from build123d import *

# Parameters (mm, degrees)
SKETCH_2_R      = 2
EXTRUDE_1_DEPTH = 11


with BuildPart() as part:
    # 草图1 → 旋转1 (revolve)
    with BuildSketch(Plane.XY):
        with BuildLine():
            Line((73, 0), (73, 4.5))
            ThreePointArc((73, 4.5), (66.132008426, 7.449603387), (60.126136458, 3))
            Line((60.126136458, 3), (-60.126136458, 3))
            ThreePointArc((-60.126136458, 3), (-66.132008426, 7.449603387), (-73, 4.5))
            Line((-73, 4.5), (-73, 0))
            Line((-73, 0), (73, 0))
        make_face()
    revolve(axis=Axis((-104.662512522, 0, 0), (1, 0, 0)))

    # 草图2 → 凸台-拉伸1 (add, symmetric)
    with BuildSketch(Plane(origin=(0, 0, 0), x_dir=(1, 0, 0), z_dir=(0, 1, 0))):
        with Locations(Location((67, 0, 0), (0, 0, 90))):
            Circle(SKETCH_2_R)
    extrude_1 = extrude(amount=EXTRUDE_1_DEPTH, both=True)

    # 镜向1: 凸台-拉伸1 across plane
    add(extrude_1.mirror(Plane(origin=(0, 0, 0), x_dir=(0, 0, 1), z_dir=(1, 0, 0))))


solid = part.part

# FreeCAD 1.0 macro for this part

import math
import FreeCAD as App
import Part
import Sketcher
from FreeCAD import Vector
Q = App.Units.Quantity

doc = App.newDocument("Part")
params = doc.addObject("Spreadsheet::Sheet", "Params")
for row, (alias, value) in enumerate([
    ("sketch1_radius", "7.5 mm"),
    ("sketch1_width", "146 mm"),
    ("sketch1_height", "4.5 mm"),
    ("revolution_angle", "360 deg"),
    ("sketch2_diameter", "4 mm"),
    ("pad1_length", "22 mm"),
], start=1):
    params.set(f"A{row}", alias)
    params.set(f"B{row}", "=" + value)
    params.setAlias(f"B{row}", alias)

body = doc.addObject("PartDesign::Body", "Body")

# Sketch on XY plane
sketch1 = body.newObject("Sketcher::SketchObject", "Sketch")
sketch1.AttachmentSupport = (doc.getObject("XY_Plane"), [""])
sketch1.MapMode = "FlatFace"
sketch1.addGeometry([
    Part.LineSegment(Vector(73, 0, 0), Vector(73, 4.5, 0)),  # 0
    Part.ArcOfCircle(Part.Circle(Vector(67, 0, 0), Vector(0, 0, 1), 7.5), math.radians(36.869898), math.radians(156.421822)),  # 1
    Part.LineSegment(Vector(60.126136, 3, 0), Vector(-60.126136, 3, 0)),  # 2
    Part.ArcOfCircle(Part.Circle(Vector(-67, 0, 0), Vector(0, 0, 1), 7.5), math.radians(23.578178), math.radians(143.130102)),  # 3
    Part.LineSegment(Vector(-73, 4.5, 0), Vector(-73, 0, 0)),  # 4
    Part.LineSegment(Vector(-73, 0, 0), Vector(73, 0, 0)),  # 5
], False)
sketch1.addConstraint([
    Sketcher.Constraint("Coincident", 0, 2, 1, 1),
    Sketcher.Constraint("Coincident", 1, 2, 2, 1),
    Sketcher.Constraint("Coincident", 2, 2, 3, 1),
    Sketcher.Constraint("Coincident", 3, 2, 4, 1),
    Sketcher.Constraint("Coincident", 4, 2, 5, 1),
    Sketcher.Constraint("Coincident", 5, 2, 0, 1),
    Sketcher.Constraint("Vertical", 0),
    Sketcher.Constraint("Horizontal", 2),
    Sketcher.Constraint("Vertical", 4),
    Sketcher.Constraint("Horizontal", 5),
    Sketcher.Constraint("Equal", 1, 3),
    Sketcher.Constraint("Symmetric", 1, 3, 3, 3, -1, 1),
    Sketcher.Constraint("Symmetric", 4, 2, 5, 2, -1, 1),
    Sketcher.Constraint("PointOnObject", 1, 3, -1),
    Sketcher.Constraint("Radius", 1, Q("7.5 mm")),
    Sketcher.Constraint("DistanceX", 5, 1, 5, 2, Q("146 mm")),
    Sketcher.Constraint("DistanceY", 0, 1, 0, 2, Q("4.5 mm")),
    Sketcher.Constraint("DistanceY", -1, 1, 1, 2, Q("3 mm")),
])
sketch1.setExpression("Constraints[14]", "Params.sketch1_radius")
sketch1.setExpression("Constraints[15]", "Params.sketch1_width")
sketch1.setExpression("Constraints[16]", "Params.sketch1_height")
revolution = body.newObject("PartDesign::Revolution", "Revolution")
revolution.Profile = sketch1
revolution.ReferenceAxis = (sketch1, ["H_Axis"])
revolution.setExpression("Angle", "Params.revolution_angle")

# Sketch on XZ plane
sketch2 = body.newObject("Sketcher::SketchObject", "Sketch001")
sketch2.AttachmentSupport = (doc.getObject("XZ_Plane"), [""])
sketch2.MapMode = "FlatFace"
sketch2.addGeometry(Part.Circle(Vector(67, 0, 0), Vector(0, 0, 1), 2), False)
sketch2.addConstraint([
    Sketcher.Constraint("PointOnObject", 0, 3, -1),
    Sketcher.Constraint("Diameter", 0, Q("4 mm")),
    Sketcher.Constraint("DistanceX", -1, 1, 0, 3, Q("67 mm")),
])
sketch2.setExpression("Constraints[1]", "Params.sketch2_diameter")
pad1 = body.newObject("PartDesign::Pad", "Pad")
pad1.Profile = sketch2
pad1.setExpression("Length", "Params.pad1_length")
pad1.Midplane = True
doc.recompute()

mirrored = body.newObject("PartDesign::Mirrored", "Mirrored")
mirrored.Originals = [pad1]
mirrored.MirrorPlane = (doc.getObject("YZ_Plane"), [""])
body.Tip = mirrored

doc.recompute()
